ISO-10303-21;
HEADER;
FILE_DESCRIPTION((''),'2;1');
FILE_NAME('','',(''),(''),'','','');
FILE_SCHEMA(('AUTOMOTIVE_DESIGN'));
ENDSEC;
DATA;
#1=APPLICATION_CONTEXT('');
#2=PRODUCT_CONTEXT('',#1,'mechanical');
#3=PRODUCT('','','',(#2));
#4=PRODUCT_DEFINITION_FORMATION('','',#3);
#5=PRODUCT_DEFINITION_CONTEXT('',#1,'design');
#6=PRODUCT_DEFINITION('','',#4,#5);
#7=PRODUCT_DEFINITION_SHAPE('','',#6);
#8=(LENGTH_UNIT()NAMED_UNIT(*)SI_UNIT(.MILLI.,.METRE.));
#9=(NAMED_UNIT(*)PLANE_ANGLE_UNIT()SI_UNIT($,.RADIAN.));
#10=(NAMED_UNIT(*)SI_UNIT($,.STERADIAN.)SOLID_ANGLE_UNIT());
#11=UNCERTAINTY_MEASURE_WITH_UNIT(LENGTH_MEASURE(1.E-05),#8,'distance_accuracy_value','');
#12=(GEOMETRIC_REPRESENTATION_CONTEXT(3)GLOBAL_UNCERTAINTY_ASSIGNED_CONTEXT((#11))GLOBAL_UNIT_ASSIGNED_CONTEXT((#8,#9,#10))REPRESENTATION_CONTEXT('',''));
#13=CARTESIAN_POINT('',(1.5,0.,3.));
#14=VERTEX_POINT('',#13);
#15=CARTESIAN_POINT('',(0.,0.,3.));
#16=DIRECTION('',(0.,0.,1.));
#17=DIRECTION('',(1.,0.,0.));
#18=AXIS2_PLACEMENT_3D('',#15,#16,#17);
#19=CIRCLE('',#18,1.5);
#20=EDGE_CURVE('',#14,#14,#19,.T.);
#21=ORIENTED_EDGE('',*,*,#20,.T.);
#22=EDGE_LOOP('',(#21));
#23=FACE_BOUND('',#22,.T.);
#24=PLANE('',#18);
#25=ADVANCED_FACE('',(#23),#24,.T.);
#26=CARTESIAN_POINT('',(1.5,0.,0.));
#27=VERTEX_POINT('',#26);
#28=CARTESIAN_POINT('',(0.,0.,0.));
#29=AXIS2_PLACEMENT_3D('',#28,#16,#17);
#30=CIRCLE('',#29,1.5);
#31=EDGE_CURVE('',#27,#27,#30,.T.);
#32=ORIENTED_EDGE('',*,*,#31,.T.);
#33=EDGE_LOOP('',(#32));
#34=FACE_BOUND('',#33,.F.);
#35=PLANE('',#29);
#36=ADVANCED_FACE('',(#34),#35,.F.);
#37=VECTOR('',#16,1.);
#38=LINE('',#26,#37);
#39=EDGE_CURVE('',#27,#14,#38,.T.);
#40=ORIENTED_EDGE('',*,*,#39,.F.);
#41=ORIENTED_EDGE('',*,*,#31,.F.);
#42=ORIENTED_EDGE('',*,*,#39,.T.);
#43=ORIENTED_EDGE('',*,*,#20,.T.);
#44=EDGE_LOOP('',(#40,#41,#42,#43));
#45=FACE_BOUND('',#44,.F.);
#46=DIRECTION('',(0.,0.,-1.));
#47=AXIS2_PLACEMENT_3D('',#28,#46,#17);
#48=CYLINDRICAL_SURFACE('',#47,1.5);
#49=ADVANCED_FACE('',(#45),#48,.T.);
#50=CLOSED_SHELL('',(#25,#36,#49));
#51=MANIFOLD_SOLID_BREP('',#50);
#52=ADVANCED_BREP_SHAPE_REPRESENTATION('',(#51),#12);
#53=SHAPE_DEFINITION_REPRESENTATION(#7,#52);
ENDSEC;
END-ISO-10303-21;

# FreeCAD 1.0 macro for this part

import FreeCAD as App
import Part
import Sketcher
from FreeCAD import Vector
Q = App.Units.Quantity

doc = App.newDocument("Part")
body = doc.addObject("PartDesign::Body", "Body")

# Sketch on XY plane
sketch1 = body.newObject("Sketcher::SketchObject", "Sketch")
sketch1.AttachmentSupport = (doc.getObject("XY_Plane"), [""])
sketch1.MapMode = "FlatFace"
sketch1.addGeometry(Part.Circle(Vector(0, 0, 0), Vector(0, 0, 1), 1.5), False)
sketch1.addConstraint([
    Sketcher.Constraint("Coincident", 0, 3, -1, 1),
    Sketcher.Constraint("Diameter", 0, Q("3 mm")),
])
pad1 = body.newObject("PartDesign::Pad", "Pad")
pad1.Profile = sketch1
pad1.Length = 3

doc.recompute()
